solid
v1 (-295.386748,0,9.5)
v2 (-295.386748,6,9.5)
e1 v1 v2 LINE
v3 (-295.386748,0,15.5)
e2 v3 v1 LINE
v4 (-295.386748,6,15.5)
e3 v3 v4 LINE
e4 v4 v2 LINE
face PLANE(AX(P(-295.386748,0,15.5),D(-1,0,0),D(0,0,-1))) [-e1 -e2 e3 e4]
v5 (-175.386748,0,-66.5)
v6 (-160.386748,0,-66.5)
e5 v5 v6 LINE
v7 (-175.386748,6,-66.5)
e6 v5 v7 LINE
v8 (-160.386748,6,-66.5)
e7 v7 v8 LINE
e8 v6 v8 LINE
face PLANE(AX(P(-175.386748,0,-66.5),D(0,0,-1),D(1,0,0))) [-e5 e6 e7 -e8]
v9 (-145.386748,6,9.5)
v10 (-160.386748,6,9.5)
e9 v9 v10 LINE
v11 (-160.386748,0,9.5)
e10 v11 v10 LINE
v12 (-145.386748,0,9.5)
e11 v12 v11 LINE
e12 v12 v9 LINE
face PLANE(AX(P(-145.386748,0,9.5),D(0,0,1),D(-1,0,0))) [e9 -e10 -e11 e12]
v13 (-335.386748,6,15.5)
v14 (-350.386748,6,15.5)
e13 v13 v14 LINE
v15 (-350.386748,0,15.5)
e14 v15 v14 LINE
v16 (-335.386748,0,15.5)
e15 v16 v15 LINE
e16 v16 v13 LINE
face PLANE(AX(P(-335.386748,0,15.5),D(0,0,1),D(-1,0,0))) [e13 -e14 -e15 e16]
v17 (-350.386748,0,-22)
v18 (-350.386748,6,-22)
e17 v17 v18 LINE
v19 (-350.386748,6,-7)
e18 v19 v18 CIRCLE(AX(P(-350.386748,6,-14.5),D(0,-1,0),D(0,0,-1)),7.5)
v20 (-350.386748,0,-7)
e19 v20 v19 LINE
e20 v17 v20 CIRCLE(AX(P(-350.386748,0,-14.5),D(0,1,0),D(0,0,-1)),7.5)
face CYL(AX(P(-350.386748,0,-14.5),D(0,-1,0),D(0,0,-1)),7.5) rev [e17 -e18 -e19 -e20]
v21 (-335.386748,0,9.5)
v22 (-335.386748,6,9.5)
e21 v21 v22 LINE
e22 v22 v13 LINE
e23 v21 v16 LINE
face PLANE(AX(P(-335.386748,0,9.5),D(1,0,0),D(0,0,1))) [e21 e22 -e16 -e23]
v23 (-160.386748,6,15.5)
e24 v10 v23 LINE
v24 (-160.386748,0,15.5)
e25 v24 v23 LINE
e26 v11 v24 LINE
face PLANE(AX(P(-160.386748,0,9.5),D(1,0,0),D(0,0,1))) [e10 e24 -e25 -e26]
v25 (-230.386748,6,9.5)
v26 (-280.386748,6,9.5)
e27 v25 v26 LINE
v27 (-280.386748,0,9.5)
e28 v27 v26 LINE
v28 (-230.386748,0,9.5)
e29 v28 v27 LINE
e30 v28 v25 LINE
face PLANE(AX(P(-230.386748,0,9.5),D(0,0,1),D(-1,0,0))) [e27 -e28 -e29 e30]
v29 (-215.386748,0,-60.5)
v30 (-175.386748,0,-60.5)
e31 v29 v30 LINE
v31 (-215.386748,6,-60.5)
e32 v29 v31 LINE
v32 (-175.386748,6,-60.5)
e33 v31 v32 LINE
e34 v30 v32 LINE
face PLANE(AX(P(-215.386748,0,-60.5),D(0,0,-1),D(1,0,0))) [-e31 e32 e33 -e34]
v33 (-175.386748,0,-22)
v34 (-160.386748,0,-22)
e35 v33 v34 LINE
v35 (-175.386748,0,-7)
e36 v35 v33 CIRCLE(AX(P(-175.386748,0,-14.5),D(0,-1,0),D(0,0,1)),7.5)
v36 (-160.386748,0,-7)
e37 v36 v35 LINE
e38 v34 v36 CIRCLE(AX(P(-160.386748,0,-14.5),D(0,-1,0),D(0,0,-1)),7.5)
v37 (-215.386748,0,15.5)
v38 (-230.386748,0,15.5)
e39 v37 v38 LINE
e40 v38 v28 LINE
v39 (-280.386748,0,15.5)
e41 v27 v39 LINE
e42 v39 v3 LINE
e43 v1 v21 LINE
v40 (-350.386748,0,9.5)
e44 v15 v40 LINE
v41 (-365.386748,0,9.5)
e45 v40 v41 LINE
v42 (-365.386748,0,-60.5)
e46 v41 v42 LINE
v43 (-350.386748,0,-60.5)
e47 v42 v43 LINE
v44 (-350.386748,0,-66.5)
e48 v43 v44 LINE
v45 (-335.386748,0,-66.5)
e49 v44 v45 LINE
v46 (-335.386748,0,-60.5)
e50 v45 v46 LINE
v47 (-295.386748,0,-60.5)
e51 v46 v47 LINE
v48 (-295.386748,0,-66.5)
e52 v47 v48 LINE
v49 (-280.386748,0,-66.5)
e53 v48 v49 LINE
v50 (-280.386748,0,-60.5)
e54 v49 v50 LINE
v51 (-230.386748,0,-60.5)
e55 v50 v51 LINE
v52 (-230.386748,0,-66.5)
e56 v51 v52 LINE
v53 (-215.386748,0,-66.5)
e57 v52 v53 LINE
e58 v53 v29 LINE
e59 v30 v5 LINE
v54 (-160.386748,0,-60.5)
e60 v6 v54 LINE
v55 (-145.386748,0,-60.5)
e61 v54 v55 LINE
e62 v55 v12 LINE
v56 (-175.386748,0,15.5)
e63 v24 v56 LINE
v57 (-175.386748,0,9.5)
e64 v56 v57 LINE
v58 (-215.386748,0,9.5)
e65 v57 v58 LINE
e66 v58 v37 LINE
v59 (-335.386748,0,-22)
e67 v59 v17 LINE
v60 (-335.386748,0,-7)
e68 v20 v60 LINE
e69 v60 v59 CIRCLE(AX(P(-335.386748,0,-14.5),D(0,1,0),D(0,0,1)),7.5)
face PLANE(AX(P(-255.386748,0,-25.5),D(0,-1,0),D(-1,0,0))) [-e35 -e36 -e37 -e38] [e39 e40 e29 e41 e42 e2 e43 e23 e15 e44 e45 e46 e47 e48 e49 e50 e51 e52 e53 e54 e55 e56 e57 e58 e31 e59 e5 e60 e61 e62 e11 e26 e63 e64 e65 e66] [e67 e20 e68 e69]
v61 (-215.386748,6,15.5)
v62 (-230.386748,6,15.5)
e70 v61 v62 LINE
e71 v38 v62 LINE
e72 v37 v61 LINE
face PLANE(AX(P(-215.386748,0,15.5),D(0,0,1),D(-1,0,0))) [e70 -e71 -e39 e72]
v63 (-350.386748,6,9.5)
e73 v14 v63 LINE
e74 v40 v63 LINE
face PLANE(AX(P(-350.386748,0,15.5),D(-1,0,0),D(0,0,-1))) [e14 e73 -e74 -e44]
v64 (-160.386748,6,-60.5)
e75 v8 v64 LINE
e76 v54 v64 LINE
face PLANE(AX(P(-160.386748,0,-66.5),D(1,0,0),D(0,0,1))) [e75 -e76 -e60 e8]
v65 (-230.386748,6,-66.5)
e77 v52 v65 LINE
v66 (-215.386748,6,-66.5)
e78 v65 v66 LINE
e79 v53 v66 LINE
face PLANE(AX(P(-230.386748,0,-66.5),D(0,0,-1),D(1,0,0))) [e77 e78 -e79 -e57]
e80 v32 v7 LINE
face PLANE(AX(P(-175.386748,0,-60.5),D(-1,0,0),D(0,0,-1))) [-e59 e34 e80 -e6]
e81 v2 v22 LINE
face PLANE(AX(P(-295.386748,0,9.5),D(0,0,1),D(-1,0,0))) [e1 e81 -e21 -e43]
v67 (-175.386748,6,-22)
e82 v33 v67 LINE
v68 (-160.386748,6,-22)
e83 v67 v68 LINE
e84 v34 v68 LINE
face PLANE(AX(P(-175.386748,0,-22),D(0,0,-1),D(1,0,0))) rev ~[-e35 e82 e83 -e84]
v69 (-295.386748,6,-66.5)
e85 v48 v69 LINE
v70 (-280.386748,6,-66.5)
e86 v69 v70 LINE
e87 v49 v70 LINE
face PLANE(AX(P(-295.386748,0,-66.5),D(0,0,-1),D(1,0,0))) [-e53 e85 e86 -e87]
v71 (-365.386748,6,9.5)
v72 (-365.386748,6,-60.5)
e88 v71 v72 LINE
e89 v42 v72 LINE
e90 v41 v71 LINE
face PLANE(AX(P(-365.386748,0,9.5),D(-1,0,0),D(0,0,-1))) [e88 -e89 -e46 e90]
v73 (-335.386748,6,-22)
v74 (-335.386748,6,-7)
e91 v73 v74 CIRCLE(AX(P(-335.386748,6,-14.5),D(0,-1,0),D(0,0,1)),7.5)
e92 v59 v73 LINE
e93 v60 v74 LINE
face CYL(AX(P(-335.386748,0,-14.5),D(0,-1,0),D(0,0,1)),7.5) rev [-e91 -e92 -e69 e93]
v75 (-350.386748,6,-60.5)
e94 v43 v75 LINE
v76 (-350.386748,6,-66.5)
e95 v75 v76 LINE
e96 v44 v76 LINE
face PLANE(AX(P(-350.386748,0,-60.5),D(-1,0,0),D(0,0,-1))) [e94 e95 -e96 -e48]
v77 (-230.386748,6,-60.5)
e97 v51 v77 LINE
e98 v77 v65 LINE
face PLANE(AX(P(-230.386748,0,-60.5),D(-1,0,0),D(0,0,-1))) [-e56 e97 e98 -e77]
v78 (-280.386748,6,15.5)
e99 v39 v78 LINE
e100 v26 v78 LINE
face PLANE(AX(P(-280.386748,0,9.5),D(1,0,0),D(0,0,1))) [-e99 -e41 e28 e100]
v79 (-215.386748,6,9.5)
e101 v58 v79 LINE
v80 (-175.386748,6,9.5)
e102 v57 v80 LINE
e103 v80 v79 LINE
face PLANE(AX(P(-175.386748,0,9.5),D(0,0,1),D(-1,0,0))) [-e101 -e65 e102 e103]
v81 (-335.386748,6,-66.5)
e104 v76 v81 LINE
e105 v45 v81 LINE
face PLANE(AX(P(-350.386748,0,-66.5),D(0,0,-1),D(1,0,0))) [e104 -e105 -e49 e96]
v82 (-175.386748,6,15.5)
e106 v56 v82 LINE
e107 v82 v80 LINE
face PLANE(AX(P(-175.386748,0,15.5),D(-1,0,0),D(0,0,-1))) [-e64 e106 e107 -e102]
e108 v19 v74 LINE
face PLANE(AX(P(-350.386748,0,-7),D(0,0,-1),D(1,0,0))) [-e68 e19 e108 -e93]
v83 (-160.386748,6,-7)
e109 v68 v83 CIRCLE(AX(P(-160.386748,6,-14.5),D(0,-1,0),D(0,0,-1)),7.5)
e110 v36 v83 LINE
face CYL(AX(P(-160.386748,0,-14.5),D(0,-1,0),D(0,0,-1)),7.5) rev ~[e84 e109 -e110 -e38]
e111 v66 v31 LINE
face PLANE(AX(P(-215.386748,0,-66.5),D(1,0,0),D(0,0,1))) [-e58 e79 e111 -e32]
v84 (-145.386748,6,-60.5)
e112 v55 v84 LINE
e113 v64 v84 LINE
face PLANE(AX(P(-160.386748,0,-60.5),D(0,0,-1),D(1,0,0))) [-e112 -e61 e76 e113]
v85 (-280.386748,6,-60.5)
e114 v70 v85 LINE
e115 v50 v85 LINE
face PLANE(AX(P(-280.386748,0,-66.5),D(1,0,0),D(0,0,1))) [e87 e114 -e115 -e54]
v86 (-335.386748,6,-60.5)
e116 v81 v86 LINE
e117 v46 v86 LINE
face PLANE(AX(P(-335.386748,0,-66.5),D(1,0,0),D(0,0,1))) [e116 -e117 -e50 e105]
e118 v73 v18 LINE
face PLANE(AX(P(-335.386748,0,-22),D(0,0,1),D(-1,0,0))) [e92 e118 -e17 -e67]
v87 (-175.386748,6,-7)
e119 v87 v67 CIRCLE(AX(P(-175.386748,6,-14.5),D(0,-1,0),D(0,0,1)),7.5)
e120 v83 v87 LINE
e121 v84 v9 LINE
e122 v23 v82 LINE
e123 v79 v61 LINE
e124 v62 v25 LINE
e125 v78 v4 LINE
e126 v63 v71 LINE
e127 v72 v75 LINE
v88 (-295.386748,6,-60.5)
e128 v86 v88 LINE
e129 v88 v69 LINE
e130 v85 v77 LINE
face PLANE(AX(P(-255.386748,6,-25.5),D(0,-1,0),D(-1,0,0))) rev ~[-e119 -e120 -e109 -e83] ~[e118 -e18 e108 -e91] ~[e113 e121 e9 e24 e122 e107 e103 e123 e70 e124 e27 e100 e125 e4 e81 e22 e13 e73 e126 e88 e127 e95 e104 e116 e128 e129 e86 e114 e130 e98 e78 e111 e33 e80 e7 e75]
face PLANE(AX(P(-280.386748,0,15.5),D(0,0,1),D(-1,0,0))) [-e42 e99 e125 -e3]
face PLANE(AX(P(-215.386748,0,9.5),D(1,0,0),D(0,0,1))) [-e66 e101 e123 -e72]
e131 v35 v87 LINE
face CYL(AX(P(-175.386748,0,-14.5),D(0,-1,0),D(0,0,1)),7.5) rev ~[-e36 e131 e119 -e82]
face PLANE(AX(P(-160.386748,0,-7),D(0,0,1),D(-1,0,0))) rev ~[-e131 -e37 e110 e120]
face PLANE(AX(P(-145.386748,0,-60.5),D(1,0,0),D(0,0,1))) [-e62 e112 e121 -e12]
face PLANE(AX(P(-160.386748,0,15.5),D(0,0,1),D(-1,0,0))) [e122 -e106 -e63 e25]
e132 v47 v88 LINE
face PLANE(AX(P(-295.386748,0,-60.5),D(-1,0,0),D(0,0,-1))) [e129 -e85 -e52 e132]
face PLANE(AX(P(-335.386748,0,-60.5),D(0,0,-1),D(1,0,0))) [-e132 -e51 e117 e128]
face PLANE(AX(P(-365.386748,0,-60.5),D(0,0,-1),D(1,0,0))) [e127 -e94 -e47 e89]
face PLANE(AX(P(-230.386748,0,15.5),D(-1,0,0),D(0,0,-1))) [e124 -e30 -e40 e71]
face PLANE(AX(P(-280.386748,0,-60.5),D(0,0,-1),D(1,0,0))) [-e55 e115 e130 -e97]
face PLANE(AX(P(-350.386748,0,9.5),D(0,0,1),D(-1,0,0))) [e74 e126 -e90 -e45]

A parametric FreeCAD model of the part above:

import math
import FreeCAD as App
import Part
import Sketcher

V = App.Vector

doc = App.newDocument("Part")
params = doc.addObject("Spreadsheet::Sheet", "Params")
for row, (alias, value) in enumerate([
    ("sketch1_width", "15 mm"),
    ("sketch1_width2", "40 mm"),
    ("sketch1_width3", "50 mm"),
    ("sketch1_height", "6 mm"),
    ("sketch1_height2", "70 mm"),
    ("pad1_length", "6 mm"),
    ("sketch2_radius", "7.5 mm"),
    ("sketch2_width", "15 mm"),
    ("pocket1_length", "10 mm"),
], start=1):
    params.set(f"A{row}", alias)
    params.set(f"B{row}", "=" + value)
    params.setAlias(f"B{row}", alias)

body = doc.addObject("PartDesign::Body", "Body")

# Sketch on XZ plane
sketch1 = body.newObject("Sketcher::SketchObject", "Sketch")
sketch1.AttachmentSupport = (doc.getObject("XZ_Plane"), [""])
sketch1.MapMode = "FlatFace"
sketch1.addGeometry([
    Part.LineSegment(V(-145, -60, 0), V(-160, -60, 0)),  # 0
    Part.LineSegment(V(-160, -60, 0), V(-160, -66, 0)),  # 1
    Part.LineSegment(V(-160, -66, 0), V(-175, -66, 0)),  # 2
    Part.LineSegment(V(-175, -66, 0), V(-175, -60, 0)),  # 3
    Part.LineSegment(V(-175, -60, 0), V(-215, -60, 0)),  # 4
    Part.LineSegment(V(-215, -60, 0), V(-215, -66, 0)),  # 5
    Part.LineSegment(V(-215, -66, 0), V(-230, -66, 0)),  # 6
    Part.LineSegment(V(-230, -66, 0), V(-230, -60, 0)),  # 7
    Part.LineSegment(V(-230, -60, 0), V(-280, -60, 0)),  # 8
    Part.LineSegment(V(-280, -60, 0), V(-280, -66, 0)),  # 9
    Part.LineSegment(V(-280, -66, 0), V(-295, -66, 0)),  # 10
    Part.LineSegment(V(-295, -66, 0), V(-295, -60, 0)),  # 11
    Part.LineSegment(V(-295, -60, 0), V(-335, -60, 0)),  # 12
    Part.LineSegment(V(-335, -60, 0), V(-335, -66, 0)),  # 13
    Part.LineSegment(V(-335, -66, 0), V(-350, -66, 0)),  # 14
    Part.LineSegment(V(-350, -66, 0), V(-350, -60, 0)),  # 15
    Part.LineSegment(V(-350, -60, 0), V(-365, -60, 0)),  # 16
    Part.LineSegment(V(-365, -60, 0), V(-365, 10, 0)),  # 17
    Part.LineSegment(V(-365, 10, 0), V(-350, 10, 0)),  # 18
    Part.LineSegment(V(-350, 10, 0), V(-350, 16, 0)),  # 19
    Part.LineSegment(V(-350, 16, 0), V(-335, 16, 0)),  # 20
    Part.LineSegment(V(-335, 16, 0), V(-335, 10, 0)),  # 21
    Part.LineSegment(V(-335, 10, 0), V(-295, 10, 0)),  # 22
    Part.LineSegment(V(-295, 10, 0), V(-295, 16, 0)),  # 23
    Part.LineSegment(V(-295, 16, 0), V(-280, 16, 0)),  # 24
    Part.LineSegment(V(-280, 16, 0), V(-280, 10, 0)),  # 25
    Part.LineSegment(V(-280, 10, 0), V(-230, 10, 0)),  # 26
    Part.LineSegment(V(-230, 10, 0), V(-230, 16, 0)),  # 27
    Part.LineSegment(V(-230, 16, 0), V(-215, 16, 0)),  # 28
    Part.LineSegment(V(-215, 16, 0), V(-215, 10, 0)),  # 29
    Part.LineSegment(V(-215, 10, 0), V(-175, 10, 0)),  # 30
    Part.LineSegment(V(-175, 10, 0), V(-175, 16, 0)),  # 31
    Part.LineSegment(V(-175, 16, 0), V(-160, 16, 0)),  # 32
    Part.LineSegment(V(-160, 16, 0), V(-160, 10, 0)),  # 33
    Part.LineSegment(V(-160, 10, 0), V(-145, 10, 0)),  # 34
    Part.LineSegment(V(-145, 10, 0), V(-145, -60, 0)),  # 35
], False)
sketch1.addConstraint([
    Sketcher.Constraint("Coincident", 0, 2, 1, 1),
    Sketcher.Constraint("Coincident", 1, 2, 2, 1),
    Sketcher.Constraint("Coincident", 2, 2, 3, 1),
    Sketcher.Constraint("Coincident", 3, 2, 4, 1),
    Sketcher.Constraint("Coincident", 4, 2, 5, 1),
    Sketcher.Constraint("Coincident", 5, 2, 6, 1),
    Sketcher.Constraint("Coincident", 6, 2, 7, 1),
    Sketcher.Constraint("Coincident", 7, 2, 8, 1),
    Sketcher.Constraint("Coincident", 8, 2, 9, 1),
    Sketcher.Constraint("Coincident", 9, 2, 10, 1),
    Sketcher.Constraint("Coincident", 10, 2, 11, 1),
    Sketcher.Constraint("Coincident", 11, 2, 12, 1),
    Sketcher.Constraint("Coincident", 12, 2, 13, 1),
    Sketcher.Constraint("Coincident", 13, 2, 14, 1),
    Sketcher.Constraint("Coincident", 14, 2, 15, 1),
    Sketcher.Constraint("Coincident", 15, 2, 16, 1),
    Sketcher.Constraint("Coincident", 16, 2, 17, 1),
    Sketcher.Constraint("Coincident", 17, 2, 18, 1),
    Sketcher.Constraint("Coincident", 18, 2, 19, 1),
    Sketcher.Constraint("Coincident", 19, 2, 20, 1),
    Sketcher.Constraint("Coincident", 20, 2, 21, 1),
    Sketcher.Constraint("Coincident", 21, 2, 22, 1),
    Sketcher.Constraint("Coincident", 22, 2, 23, 1),
    Sketcher.Constraint("Coincident", 23, 2, 24, 1),
    Sketcher.Constraint("Coincident", 24, 2, 25, 1),
    Sketcher.Constraint("Coincident", 25, 2, 26, 1),
    Sketcher.Constraint("Coincident", 26, 2, 27, 1),
    Sketcher.Constraint("Coincident", 27, 2, 28, 1),
    Sketcher.Constraint("Coincident", 28, 2, 29, 1),
    Sketcher.Constraint("Coincident", 29, 2, 30, 1),
    Sketcher.Constraint("Coincident", 30, 2, 31, 1),
    Sketcher.Constraint("Coincident", 31, 2, 32, 1),
    Sketcher.Constraint("Coincident", 32, 2, 33, 1),
    Sketcher.Constraint("Coincident", 33, 2, 34, 1),
    Sketcher.Constraint("Coincident", 34, 2, 35, 1),
    Sketcher.Constraint("Coincident", 35, 2, 0, 1),
    Sketcher.Constraint("Horizontal", 0),
    Sketcher.Constraint("Vertical", 1),
    Sketcher.Constraint("Horizontal", 2),
    Sketcher.Constraint("Vertical", 3),
    Sketcher.Constraint("Horizontal", 4),
    Sketcher.Constraint("Vertical", 5),
    Sketcher.Constraint("Horizontal", 6),
    Sketcher.Constraint("Vertical", 7),
    Sketcher.Constraint("Horizontal", 8),
    Sketcher.Constraint("Vertical", 9),
    Sketcher.Constraint("Horizontal", 10),
    Sketcher.Constraint("Vertical", 11),
    Sketcher.Constraint("Horizontal", 12),
    Sketcher.Constraint("Vertical", 13),
    Sketcher.Constraint("Horizontal", 14),
    Sketcher.Constraint("Vertical", 15),
    Sketcher.Constraint("Horizontal", 16),
    Sketcher.Constraint("Vertical", 17),
    Sketcher.Constraint("Horizontal", 18),
    Sketcher.Constraint("Vertical", 19),
    Sketcher.Constraint("Horizontal", 20),
    Sketcher.Constraint("Vertical", 21),
    Sketcher.Constraint("Horizontal", 22),
    Sketcher.Constraint("Vertical", 23),
    Sketcher.Constraint("Horizontal", 24),
    Sketcher.Constraint("Vertical", 25),
    Sketcher.Constraint("Horizontal", 26),
    Sketcher.Constraint("Vertical", 27),
    Sketcher.Constraint("Horizontal", 28),
    Sketcher.Constraint("Vertical", 29),
    Sketcher.Constraint("Horizontal", 30),
    Sketcher.Constraint("Vertical", 31),
    Sketcher.Constraint("Horizontal", 32),
    Sketcher.Constraint("Vertical", 33),
    Sketcher.Constraint("Horizontal", 34),
    Sketcher.Constraint("Vertical", 35),
    Sketcher.Constraint("Horizontal", 0, 2, 3, 2),
    Sketcher.Constraint("Horizontal", 2, 2, 5, 2),
    Sketcher.Constraint("Horizontal", 4, 2, 7, 2),
    Sketcher.Constraint("Horizontal", 6, 2, 9, 2),
    Sketcher.Constraint("Horizontal", 8, 2, 11, 2),
    Sketcher.Constraint("Horizontal", 10, 2, 13, 2),
    Sketcher.Constraint("Horizontal", 12, 2, 15, 2),
    Sketcher.Constraint("Horizontal", 18, 2, 21, 2),
    Sketcher.Constraint("Horizontal", 20, 2, 23, 2),
    Sketcher.Constraint("Horizontal", 22, 2, 25, 2),
    Sketcher.Constraint("Horizontal", 24, 2, 27, 2),
    Sketcher.Constraint("Horizontal", 26, 2, 29, 2),
    Sketcher.Constraint("Horizontal", 28, 2, 31, 2),
    Sketcher.Constraint("Horizontal", 30, 2, 33, 2),
    Sketcher.Constraint("Vertical", 15, 2, 18, 2),
    Sketcher.Constraint("Vertical", 13, 2, 20, 2),
    Sketcher.Constraint("Vertical", 11, 2, 22, 2),
    Sketcher.Constraint("Vertical", 9, 2, 24, 2),
    Sketcher.Constraint("Vertical", 7, 2, 26, 2),
    Sketcher.Constraint("Vertical", 5, 2, 28, 2),
    Sketcher.Constraint("Vertical", 3, 2, 30, 2),
    Sketcher.Constraint("Vertical", 1, 2, 32, 2),
    Sketcher.Constraint("Equal", 0, 2),
    Sketcher.Constraint("Equal", 2, 6),
    Sketcher.Constraint("Equal", 6, 10),
    Sketcher.Constraint("Equal", 4, 12),
    Sketcher.Constraint("Equal", 10, 14),
    Sketcher.Constraint("Equal", 14, 16),
    Sketcher.Constraint("Equal", 15, 19),
    Sketcher.Constraint("DistanceX", 0, 2, 0, 1, 15.0),
    Sketcher.Constraint("DistanceX", 4, 2, 4, 1, 40.0),
    Sketcher.Constraint("DistanceX", 8, 2, 8, 1, 50.0),
    Sketcher.Constraint("DistanceY", 1, 2, 1, 1, 6.0),
    Sketcher.Constraint("DistanceY", 17, 1, 17, 2, 70.0),
    Sketcher.Constraint("DistanceY", 0, 2, -1, 1, 60.5),
    Sketcher.Constraint("DistanceX", 0, 2, -1, 1, 160.386748),
])
sketch1.setExpression("Constraints[101]", "Params.sketch1_width")
sketch1.setExpression("Constraints[102]", "Params.sketch1_width2")
sketch1.setExpression("Constraints[103]", "Params.sketch1_width3")
sketch1.setExpression("Constraints[104]", "Params.sketch1_height")
sketch1.setExpression("Constraints[105]", "Params.sketch1_height2")
pad1 = body.newObject("PartDesign::Pad", "Pad")
pad1.Profile = sketch1
pad1.setExpression("Length", "Params.pad1_length")
pad1.Reversed = True

# Sketch on XZ plane
sketch2 = body.newObject("Sketcher::SketchObject", "Sketch001")
sketch2.AttachmentSupport = (doc.getObject("XZ_Plane"), [""])
sketch2.MapMode = "FlatFace"
sketch2.addGeometry([
    Part.LineSegment(V(-335, -7, 0), V(-350, -7, 0)),  # 0
    Part.ArcOfCircle(Part.Circle(V(-350, -14, 0), V(0, 0, 1), 8), math.radians(90), math.radians(270)),  # 1
    Part.LineSegment(V(-350, -22, 0), V(-335, -22, 0)),  # 2
    Part.ArcOfCircle(Part.Circle(V(-335, -14, 0), V(0, 0, 1), 8), math.radians(-90), math.radians(90)),  # 3
    Part.LineSegment(V(-175, -22, 0), V(-160, -22, 0)),  # 4
    Part.ArcOfCircle(Part.Circle(V(-160, -14, 0), V(0, 0, 1), 8), math.radians(-90), math.radians(90)),  # 5
    Part.LineSegment(V(-160, -7, 0), V(-175, -7, 0)),  # 6
    Part.ArcOfCircle(Part.Circle(V(-175, -14, 0), V(0, 0, 1), 8), math.radians(90), math.radians(270)),  # 7
], False)
sketch2.addConstraint([
    Sketcher.Constraint("Tangent", 0, 2, 1, 1),
    Sketcher.Constraint("Tangent", 1, 2, 2, 1),
    Sketcher.Constraint("Tangent", 2, 2, 3, 1),
    Sketcher.Constraint("Tangent", 3, 2, 0, 1),
    Sketcher.Constraint("Tangent", 4, 2, 5, 1),
    Sketcher.Constraint("Tangent", 5, 2, 6, 1),
    Sketcher.Constraint("Tangent", 6, 2, 7, 1),
    Sketcher.Constraint("Tangent", 7, 2, 4, 1),
    Sketcher.Constraint("Horizontal", 0),
    Sketcher.Constraint("Horizontal", 2),
    Sketcher.Constraint("Horizontal", 4),
    Sketcher.Constraint("Horizontal", 6),
    Sketcher.Constraint("Equal", 3, 5),
    Sketcher.Constraint("Horizontal", 3, 3, 5, 3),
    Sketcher.Constraint("Equal", 2, 4),
    Sketcher.Constraint("Radius", 1, 7.5),
    Sketcher.Constraint("DistanceX", 0, 2, 0, 1, 15.0),
    Sketcher.Constraint("DistanceY", 0, 2, -1, 1, 7.0),
    Sketcher.Constraint("DistanceX", 3, 3, 5, 3, 175.0),
    Sketcher.Constraint("DistanceX", 1, 3, -1, 1, 350.386748),
])
sketch2.setExpression("Constraints[15]", "Params.sketch2_radius")
sketch2.setExpression("Constraints[16]", "Params.sketch2_width")
pocket1 = body.newObject("PartDesign::Pocket", "Pocket")
pocket1.Profile = sketch2
pocket1.setExpression("Length", "Params.pocket1_length")

doc.recompute()
